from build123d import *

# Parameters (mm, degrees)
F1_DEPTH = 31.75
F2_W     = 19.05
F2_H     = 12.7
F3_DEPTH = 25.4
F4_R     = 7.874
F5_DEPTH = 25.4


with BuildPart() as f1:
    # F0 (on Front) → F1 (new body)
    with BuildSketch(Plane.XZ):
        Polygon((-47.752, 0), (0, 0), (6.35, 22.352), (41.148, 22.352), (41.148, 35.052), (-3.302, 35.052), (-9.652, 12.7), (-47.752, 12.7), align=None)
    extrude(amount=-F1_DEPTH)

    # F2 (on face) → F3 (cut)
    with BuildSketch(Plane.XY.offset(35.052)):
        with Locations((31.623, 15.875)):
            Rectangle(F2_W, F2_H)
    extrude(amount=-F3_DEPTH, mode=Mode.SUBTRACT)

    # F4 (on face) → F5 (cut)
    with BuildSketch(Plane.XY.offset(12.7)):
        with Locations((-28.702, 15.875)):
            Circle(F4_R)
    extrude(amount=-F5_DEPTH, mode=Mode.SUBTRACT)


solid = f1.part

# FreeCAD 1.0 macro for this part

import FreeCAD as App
import Part
import Sketcher
Q = App.Units.Quantity


def add_polygon(sketch, points):
    """Adds a closed chain of lines whose ends are joined by coincident constraints."""
    first, n = sketch.GeometryCount, len(points)
    for a, b in zip(points, points[1:] + points[:1]):
        sketch.addGeometry(Part.LineSegment(App.Vector(*a, 0), App.Vector(*b, 0)), False)
    for i in range(n):
        sketch.addConstraint(Sketcher.Constraint("Coincident", first + i, 2, first + (i + 1) % n, 1))

doc = App.newDocument("Part")
body = doc.addObject("PartDesign::Body", "Body")

# Sketch on XZ plane
sketch1 = body.newObject("Sketcher::SketchObject", "Sketch")
sketch1.AttachmentSupport = (doc.getObject("XZ_Plane"), [""])
sketch1.MapMode = "FlatFace"
add_polygon(sketch1, [(-48, 0), (0, 0), (6, 22), (41, 22), (41, 35), (-3, 35), (-10, 13), (-48, 13)])  # lines 0-7
sketch1.addConstraint([
    Sketcher.Constraint("Horizontal", 0),
    Sketcher.Constraint("Horizontal", 2),
    Sketcher.Constraint("Vertical", 3),
    Sketcher.Constraint("Horizontal", 4),
    Sketcher.Constraint("Horizontal", 6),
    Sketcher.Constraint("Vertical", 7),
    Sketcher.Constraint("Coincident", 0, 2, -1, 1),
    Sketcher.Constraint("Parallel", 1, 5),
    Sketcher.Constraint("Equal", 3, 7),
    Sketcher.Constraint("DistanceX", 6, 2, 6, 1, Q("1.5 in")),
    Sketcher.Constraint("DistanceY", 3, 1, 3, 2, Q("0.5 in")),
    Sketcher.Constraint("DistanceX", 5, 2, 2, 2, Q("2 in")),
    Sketcher.Constraint("DistanceX", 0, 1, 0, 2, Q("1.88 in")),
    Sketcher.Constraint("DistanceX", 2, 1, 2, 2, Q("1.37 in")),
    Sketcher.Constraint("DistanceY", -1, 1, 1, 2, Q("0.88 in")),
])
pad1 = body.newObject("PartDesign::Pad", "Pad")
pad1.Profile = sketch1
pad1.Length = Q("1.25 in")
pad1.Reversed = True

# Sketch on XY plane
sketch2 = body.newObject("Sketcher::SketchObject", "Sketch001")
sketch2.AttachmentSupport = (doc.getObject("XY_Plane"), [""])
sketch2.MapMode = "FlatFace"
sketch2.AttachmentOffset = App.Placement(App.Vector(0, 0, 1.38 * 25.4), App.Rotation())
add_polygon(sketch2, [(22, 22), (22, 10), (41, 10), (41, 22)])  # lines 0-3
sketch2.addConstraint([
    Sketcher.Constraint("Vertical", 0),
    Sketcher.Constraint("Horizontal", 1),
    Sketcher.Constraint("Vertical", 2),
    Sketcher.Constraint("Horizontal", 3),
    Sketcher.Constraint("DistanceY", 0, 2, 0, 1, Q("0.5 in")),
    Sketcher.Constraint("DistanceX", 1, 1, 1, 2, Q("0.75 in")),
    Sketcher.Constraint("DistanceX", -1, 1, 0, 2, Q("0.87 in")),
    Sketcher.Constraint("DistanceY", -1, 1, 0, 2, Q("0.375 in")),
])
pocket1 = body.newObject("PartDesign::Pocket", "Pocket")
pocket1.Profile = sketch2
pocket1.Length = Q("1 in")

# Sketch on XY plane
sketch3 = body.newObject("Sketcher::SketchObject", "Sketch002")
sketch3.AttachmentSupport = (doc.getObject("XY_Plane"), [""])
sketch3.MapMode = "FlatFace"
sketch3.AttachmentOffset = App.Placement(App.Vector(0, 0, 0.5 * 25.4), App.Rotation())
sketch3.addGeometry(Part.Circle(App.Vector(-29, 16, 0), App.Vector(0, 0, 1), 8), False)
sketch3.addConstraint([
    Sketcher.Constraint("Diameter", 0, Q("0.62 in")),
    Sketcher.Constraint("DistanceX", 0, 3, -1, 1, Q("1.13 in")),
    Sketcher.Constraint("DistanceY", -1, 1, 0, 3, Q("0.625 in")),
])
pocket2 = body.newObject("PartDesign::Pocket", "Pocket001")
pocket2.Profile = sketch3
pocket2.Length = Q("1 in")

doc.recompute()
